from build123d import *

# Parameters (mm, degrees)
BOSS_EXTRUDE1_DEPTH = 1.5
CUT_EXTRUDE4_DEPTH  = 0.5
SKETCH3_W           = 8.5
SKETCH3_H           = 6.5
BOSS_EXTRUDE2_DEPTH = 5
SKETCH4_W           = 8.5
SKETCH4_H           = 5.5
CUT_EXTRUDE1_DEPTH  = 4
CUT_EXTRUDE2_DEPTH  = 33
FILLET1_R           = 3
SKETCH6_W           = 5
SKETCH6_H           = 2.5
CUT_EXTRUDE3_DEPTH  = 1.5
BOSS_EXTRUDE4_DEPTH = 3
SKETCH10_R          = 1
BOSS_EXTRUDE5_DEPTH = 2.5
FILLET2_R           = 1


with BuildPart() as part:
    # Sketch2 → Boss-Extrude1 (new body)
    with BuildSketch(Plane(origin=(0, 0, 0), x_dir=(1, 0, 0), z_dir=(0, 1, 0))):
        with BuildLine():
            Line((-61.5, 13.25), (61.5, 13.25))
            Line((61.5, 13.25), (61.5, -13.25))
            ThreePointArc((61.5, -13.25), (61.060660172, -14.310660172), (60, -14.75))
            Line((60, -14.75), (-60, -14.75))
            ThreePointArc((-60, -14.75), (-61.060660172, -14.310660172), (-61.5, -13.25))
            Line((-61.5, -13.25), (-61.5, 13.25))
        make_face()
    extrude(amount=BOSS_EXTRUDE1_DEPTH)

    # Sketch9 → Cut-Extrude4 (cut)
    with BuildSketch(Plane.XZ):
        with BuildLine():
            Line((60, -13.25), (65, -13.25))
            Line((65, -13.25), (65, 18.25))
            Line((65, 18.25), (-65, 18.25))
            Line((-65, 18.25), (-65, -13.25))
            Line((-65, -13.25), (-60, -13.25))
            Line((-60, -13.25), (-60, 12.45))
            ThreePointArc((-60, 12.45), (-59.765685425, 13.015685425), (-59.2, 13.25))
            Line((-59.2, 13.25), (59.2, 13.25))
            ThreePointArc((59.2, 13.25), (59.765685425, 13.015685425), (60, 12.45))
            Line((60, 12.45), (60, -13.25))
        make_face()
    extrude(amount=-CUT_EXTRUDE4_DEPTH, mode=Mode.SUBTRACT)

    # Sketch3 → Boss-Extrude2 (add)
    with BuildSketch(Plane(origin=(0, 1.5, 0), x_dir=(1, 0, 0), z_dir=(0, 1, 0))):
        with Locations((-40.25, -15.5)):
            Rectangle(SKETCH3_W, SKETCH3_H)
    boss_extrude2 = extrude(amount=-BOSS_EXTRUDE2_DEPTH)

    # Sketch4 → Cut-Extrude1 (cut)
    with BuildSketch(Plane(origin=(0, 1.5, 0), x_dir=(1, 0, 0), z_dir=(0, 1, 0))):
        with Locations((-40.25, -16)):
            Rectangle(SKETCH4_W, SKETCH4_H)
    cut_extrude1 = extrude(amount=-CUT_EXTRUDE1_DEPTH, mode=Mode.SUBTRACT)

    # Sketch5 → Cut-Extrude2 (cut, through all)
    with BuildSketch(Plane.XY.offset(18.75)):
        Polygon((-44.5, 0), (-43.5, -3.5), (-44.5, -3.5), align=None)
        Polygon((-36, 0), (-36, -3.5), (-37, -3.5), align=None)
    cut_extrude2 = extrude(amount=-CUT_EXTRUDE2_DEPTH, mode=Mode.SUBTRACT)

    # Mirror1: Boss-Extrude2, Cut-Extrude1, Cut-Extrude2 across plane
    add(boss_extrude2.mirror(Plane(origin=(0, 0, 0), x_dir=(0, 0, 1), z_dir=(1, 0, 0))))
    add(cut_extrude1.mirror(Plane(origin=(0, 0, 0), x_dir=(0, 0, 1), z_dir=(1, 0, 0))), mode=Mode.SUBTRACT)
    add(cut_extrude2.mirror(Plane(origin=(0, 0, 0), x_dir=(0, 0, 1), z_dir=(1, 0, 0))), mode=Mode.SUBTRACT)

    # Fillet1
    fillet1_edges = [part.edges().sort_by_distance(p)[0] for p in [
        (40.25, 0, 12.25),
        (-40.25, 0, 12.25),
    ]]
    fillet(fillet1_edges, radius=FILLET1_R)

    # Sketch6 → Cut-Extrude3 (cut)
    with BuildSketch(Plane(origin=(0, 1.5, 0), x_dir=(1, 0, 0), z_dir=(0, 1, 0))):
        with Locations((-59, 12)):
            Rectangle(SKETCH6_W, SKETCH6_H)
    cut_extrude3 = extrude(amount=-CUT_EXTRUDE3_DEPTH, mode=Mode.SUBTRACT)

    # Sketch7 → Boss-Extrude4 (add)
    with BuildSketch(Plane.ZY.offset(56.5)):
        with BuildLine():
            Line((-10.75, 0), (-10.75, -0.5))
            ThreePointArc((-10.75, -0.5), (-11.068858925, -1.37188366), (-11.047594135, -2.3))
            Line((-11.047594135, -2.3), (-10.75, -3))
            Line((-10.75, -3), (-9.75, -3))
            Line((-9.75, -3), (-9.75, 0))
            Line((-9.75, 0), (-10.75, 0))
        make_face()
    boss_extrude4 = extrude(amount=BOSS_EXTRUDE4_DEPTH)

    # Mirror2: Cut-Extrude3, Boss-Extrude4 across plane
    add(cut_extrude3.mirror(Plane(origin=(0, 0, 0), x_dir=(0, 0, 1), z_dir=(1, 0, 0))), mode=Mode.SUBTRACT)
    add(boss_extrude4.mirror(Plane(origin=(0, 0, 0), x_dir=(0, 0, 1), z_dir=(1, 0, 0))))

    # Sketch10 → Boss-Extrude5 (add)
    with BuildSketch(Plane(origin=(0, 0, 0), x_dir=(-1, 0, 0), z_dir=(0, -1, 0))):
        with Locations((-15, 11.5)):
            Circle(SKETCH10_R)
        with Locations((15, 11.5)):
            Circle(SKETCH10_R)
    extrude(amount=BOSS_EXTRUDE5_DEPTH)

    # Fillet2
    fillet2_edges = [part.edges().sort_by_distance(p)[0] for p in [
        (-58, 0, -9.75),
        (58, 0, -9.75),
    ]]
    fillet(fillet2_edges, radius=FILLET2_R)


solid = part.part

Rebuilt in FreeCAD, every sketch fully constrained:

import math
import FreeCAD as App
import Part
import Sketcher
from FreeCAD import Vector
Q = App.Units.Quantity


def edges_at(feature, points):
    """Names of the edges that pass closest to the given points."""
    edges = feature.Shape.Edges
    near = lambda p: min(range(len(edges)), key=lambda i: edges[i].distToShape(Part.Vertex(*p))[0])
    return sorted({f"Edge{near(p) + 1}" for p in points})


def add_polygon(sketch, points):
    """Adds a closed chain of lines whose ends are joined by coincident constraints."""
    first, n = sketch.GeometryCount, len(points)
    for a, b in zip(points, points[1:] + points[:1]):
        sketch.addGeometry(Part.LineSegment(App.Vector(*a, 0), App.Vector(*b, 0)), False)
    for i in range(n):
        sketch.addConstraint(Sketcher.Constraint("Coincident", first + i, 2, first + (i + 1) % n, 1))

doc = App.newDocument("Part")
body = doc.addObject("PartDesign::Body", "Body")

sketch1 = body.newObject("Sketcher::SketchObject", "Sketch")
sketch1.AttachmentSupport = (doc.getObject("XZ_Plane"), [""])
sketch1.MapMode = "FlatFace"
sketch1.addGeometry([
    Part.LineSegment(Vector(61.5, -13.2, 0), Vector(-61.5, -13.2, 0)),
    Part.LineSegment(Vector(-61.5, -13.2, 0), Vector(-61.5, 13.2, 0)),
    Part.ArcOfCircle(Part.Circle(Vector(-60, 13.3, 0), Vector(0, 0, 1), 1.5), math.radians(90), math.radians(180)),
    Part.LineSegment(Vector(-60, 14.8, 0), Vector(60, 14.8, 0)),
    Part.ArcOfCircle(Part.Circle(Vector(60, 13.3, 0), Vector(0, 0, 1), 1.5), math.radians(0), math.radians(90)),
    Part.LineSegment(Vector(61.5, 13.2, 0), Vector(61.5, -13.2, 0)),
], False)
sketch1.addConstraint([
    Sketcher.Constraint("Coincident", 0, 2, 1, 1),
    Sketcher.Constraint("Tangent", 1, 2, 2, 2),
    Sketcher.Constraint("Tangent", 2, 1, 3, 1),
    Sketcher.Constraint("Tangent", 3, 2, 4, 2),
    Sketcher.Constraint("Tangent", 4, 1, 5, 1),
    Sketcher.Constraint("Coincident", 5, 2, 0, 1),
    Sketcher.Constraint("Horizontal", 0),
    Sketcher.Constraint("Vertical", 1),
    Sketcher.Constraint("Horizontal", 3),
    Sketcher.Constraint("Vertical", 5),
    Sketcher.Constraint("Equal", 2, 4),
    Sketcher.Constraint("Symmetric", 0, 2, 4, 1, -1, 1),
    Sketcher.Constraint("Radius", 2, Q("1.5 mm")),
    Sketcher.Constraint("DistanceX", 0, 2, 0, 1, Q("123 mm")),
    Sketcher.Constraint("DistanceY", 1, 1, 1, 2, Q("26.5 mm")),
])
pad1 = body.newObject("PartDesign::Pad", "Pad")
pad1.Profile = sketch1
pad1.Length = 1.5
pad1.Reversed = True

sketch2 = body.newObject("Sketcher::SketchObject", "Sketch001")
sketch2.AttachmentSupport = (doc.getObject("XZ_Plane"), [""])
sketch2.MapMode = "FlatFace"
sketch2.addGeometry([
    Part.LineSegment(Vector(60, -13.2, 0), Vector(65, -13.2, 0)),
    Part.LineSegment(Vector(65, -13.2, 0), Vector(65, 18.2, 0)),
    Part.LineSegment(Vector(65, 18.2, 0), Vector(-65, 18.2, 0)),
    Part.LineSegment(Vector(-65, 18.2, 0), Vector(-65, -13.2, 0)),
    Part.LineSegment(Vector(-65, -13.2, 0), Vector(-60, -13.2, 0)),
    Part.LineSegment(Vector(-60, -13.2, 0), Vector(-60, 12.4, 0)),
    Part.ArcOfCircle(Part.Circle(Vector(-59.2, 12.4, 0), Vector(0, 0, 1), 0.8), math.radians(90), math.radians(180)),
    Part.LineSegment(Vector(-59.2, 13.2, 0), Vector(59.2, 13.2, 0)),
    Part.ArcOfCircle(Part.Circle(Vector(59.2, 12.4, 0), Vector(0, 0, 1), 0.8), math.radians(0), math.radians(90)),
    Part.LineSegment(Vector(60, 12.4, 0), Vector(60, -13.2, 0)),
], False)
sketch2.addConstraint([
    Sketcher.Constraint("Coincident", 0, 2, 1, 1),
    Sketcher.Constraint("Coincident", 1, 2, 2, 1),
    Sketcher.Constraint("Coincident", 2, 2, 3, 1),
    Sketcher.Constraint("Coincident", 3, 2, 4, 1),
    Sketcher.Constraint("Coincident", 4, 2, 5, 1),
    Sketcher.Constraint("Tangent", 5, 2, 6, 2),
    Sketcher.Constraint("Tangent", 6, 1, 7, 1),
    Sketcher.Constraint("Tangent", 7, 2, 8, 2),
    Sketcher.Constraint("Tangent", 8, 1, 9, 1),
    Sketcher.Constraint("Coincident", 9, 2, 0, 1),
    Sketcher.Constraint("Horizontal", 0),
    Sketcher.Constraint("Vertical", 1),
    Sketcher.Constraint("Horizontal", 2),
    Sketcher.Constraint("Vertical", 3),
    Sketcher.Constraint("Horizontal", 4),
    Sketcher.Constraint("Vertical", 5),
    Sketcher.Constraint("Horizontal", 7),
    Sketcher.Constraint("Vertical", 9),
    Sketcher.Constraint("Equal", 6, 8),
    Sketcher.Constraint("Symmetric", 0, 2, 3, 2, -2),
    Sketcher.Constraint("Equal", 0, 4),
    Sketcher.Constraint("Radius", 6, Q("0.8 mm")),
    Sketcher.Constraint("DistanceX", 0, 1, 0, 2, Q("5 mm")),
    Sketcher.Constraint("DistanceX", 2, 2, 2, 1, Q("130 mm")),
    Sketcher.Constraint("DistanceY", 1, 1, 1, 2, Q("31.5 mm")),
    Sketcher.Constraint("DistanceY", 5, 1, 5, 2, Q("25.7 mm")),
    Sketcher.Constraint("DistanceY", -1, 1, 6, 3, Q("12.45 mm")),
])
pocket1 = body.newObject("PartDesign::Pocket", "Pocket")
pocket1.Profile = sketch2
pocket1.Length = 0.5

sketch3 = body.newObject("Sketcher::SketchObject", "Sketch002")
sketch3.AttachmentSupport = (doc.getObject("XZ_Plane"), [""])
sketch3.MapMode = "FlatFace"
sketch3.AttachmentOffset = App.Placement(Vector(0, 0, -1.5), App.Rotation())
add_polygon(sketch3, [(-44, 12), (-44, 19), (-36, 19), (-36, 12)])
sketch3.addConstraint([
    Sketcher.Constraint("Vertical", 0),
    Sketcher.Constraint("Horizontal", 1),
    Sketcher.Constraint("Vertical", 2),
    Sketcher.Constraint("Horizontal", 3),
    Sketcher.Constraint("DistanceX", 1, 1, 1, 2, Q("8.5 mm")),
    Sketcher.Constraint("DistanceY", 0, 1, 0, 2, Q("6.5 mm")),
    Sketcher.Constraint("DistanceX", 1, 2, -1, 1, Q("36 mm")),
    Sketcher.Constraint("DistanceY", -1, 1, 0, 2, Q("18.75 mm")),
])
pad2 = body.newObject("PartDesign::Pad", "Pad001")
pad2.Profile = sketch3
pad2.Length = 5

sketch4 = body.newObject("Sketcher::SketchObject", "Sketch003")
sketch4.AttachmentSupport = (doc.getObject("XZ_Plane"), [""])
sketch4.MapMode = "FlatFace"
sketch4.AttachmentOffset = App.Placement(Vector(0, 0, -1.5), App.Rotation())
add_polygon(sketch4, [(-44, 13), (-44, 19), (-36, 19), (-36, 13)])
sketch4.addConstraint([
    Sketcher.Constraint("Vertical", 0),
    Sketcher.Constraint("Horizontal", 1),
    Sketcher.Constraint("Vertical", 2),
    Sketcher.Constraint("Horizontal", 3),
    Sketcher.Constraint("DistanceX", 1, 1, 1, 2, Q("8.5 mm")),
    Sketcher.Constraint("DistanceY", 0, 1, 0, 2, Q("5.5 mm")),
    Sketcher.Constraint("DistanceX", 1, 2, -1, 1, Q("36 mm")),
    Sketcher.Constraint("DistanceY", -1, 1, 0, 2, Q("18.75 mm")),
])
pocket2 = body.newObject("PartDesign::Pocket", "Pocket001")
pocket2.Profile = sketch4
pocket2.Length = 4
pocket2.Reversed = True

sketch5 = body.newObject("Sketcher::SketchObject", "Sketch004")
sketch5.AttachmentSupport = (doc.getObject("XY_Plane"), [""])
sketch5.MapMode = "FlatFace"
sketch5.AttachmentOffset = App.Placement(Vector(0, 0, 18.75), App.Rotation())
add_polygon(sketch5, [(-43.5, -3.5), (-44.5, 0), (-44.5, -3.5)])
add_polygon(sketch5, [(-36, -3.5), (-36, 0), (-37, -3.5)])
sketch5.addConstraint([
    Sketcher.Constraint("Vertical", 1),
    Sketcher.Constraint("Horizontal", 2),
    Sketcher.Constraint("Vertical", 3),
    Sketcher.Constraint("Horizontal", 5),
    Sketcher.Constraint("PointOnObject", 0, 2, -1),
    Sketcher.Constraint("PointOnObject", 3, 2, -1),
    Sketcher.Constraint("Horizontal", 2, 2, 4, 2),
    Sketcher.Constraint("Equal", 2, 5),
    Sketcher.Constraint("DistanceX", 2, 1, 2, 2, Q("1 mm")),
    Sketcher.Constraint("DistanceY", 1, 2, 1, 1, Q("3.5 mm")),
    Sketcher.Constraint("DistanceX", 3, 2, -1, 1, Q("36 mm")),
    Sketcher.Constraint("DistanceX", 0, 2, -1, 1, Q("44.5 mm")),
])
pocket3 = body.newObject("PartDesign::Pocket", "Pocket002")
pocket3.Profile = sketch5
pocket3.Type = "ThroughAll"
doc.recompute()

mirrored = body.newObject("PartDesign::Mirrored", "Mirrored")
mirrored.Originals = [pad2, pocket2, pocket3]
mirrored.MirrorPlane = (doc.getObject("YZ_Plane"), [""])
body.Tip = mirrored
doc.recompute()

fillet = body.newObject("PartDesign::Fillet", "Fillet")
fillet.Base = (mirrored, edges_at(mirrored, [(40.25, 0, 12.25), (-40.25, 0, 12.25)]))
fillet.Radius = 3

sketch6 = body.newObject("Sketcher::SketchObject", "Sketch005")
sketch6.AttachmentSupport = (doc.getObject("XZ_Plane"), [""])
sketch6.MapMode = "FlatFace"
sketch6.AttachmentOffset = App.Placement(Vector(0, 0, -1.5), App.Rotation())
add_polygon(sketch6, [(-61.5, -13.2), (-61.5, -10.8), (-56.5, -10.8), (-56.5, -13.2)])
sketch6.addConstraint([
    Sketcher.Constraint("Vertical", 0),
    Sketcher.Constraint("Horizontal", 1),
    Sketcher.Constraint("Vertical", 2),
    Sketcher.Constraint("Horizontal", 3),
    Sketcher.Constraint("DistanceX", 1, 1, 1, 2, Q("5 mm")),
    Sketcher.Constraint("DistanceY", 0, 1, 0, 2, Q("2.5 mm")),
    Sketcher.Constraint("DistanceX", 0, 2, -1, 1, Q("61.5 mm")),
    Sketcher.Constraint("DistanceY", 0, 2, -1, 1, Q("10.75 mm")),
])
pocket4 = body.newObject("PartDesign::Pocket", "Pocket003")
pocket4.Profile = sketch6
pocket4.Length = 1.5
pocket4.Reversed = True

sketch7 = body.newObject("Sketcher::SketchObject", "Sketch006")
sketch7.AttachmentSupport = (doc.getObject("YZ_Plane"), [""])
sketch7.MapMode = "FlatFace"
sketch7.AttachmentOffset = App.Placement(Vector(0, 0, -56.5), App.Rotation())
sketch7.addGeometry([
    Part.LineSegment(Vector(0, -10.8, 0), Vector(-0.5, -10.8, 0)),
    Part.ArcOfCircle(Part.Circle(Vector(-1.8, -8.6, 0), Vector(0, 0, 1), 2.5), math.radians(-102), math.radians(-59)),
    Part.LineSegment(Vector(-2.3, -11, 0), Vector(-3, -10.8, 0)),
    Part.LineSegment(Vector(-3, -10.8, 0), Vector(-3, -9.8, 0)),
    Part.LineSegment(Vector(-3, -9.8, 0), Vector(0, -9.8, 0)),
    Part.LineSegment(Vector(0, -9.8, 0), Vector(0, -10.8, 0)),
], False)
sketch7.addConstraint([
    Sketcher.Constraint("Coincident", 0, 2, 1, 2),
    Sketcher.Constraint("Coincident", 1, 1, 2, 1),
    Sketcher.Constraint("Coincident", 2, 2, 3, 1),
    Sketcher.Constraint("Coincident", 3, 2, 4, 1),
    Sketcher.Constraint("Coincident", 4, 2, 5, 1),
    Sketcher.Constraint("Coincident", 5, 2, 0, 1),
    Sketcher.Constraint("Horizontal", 0),
    Sketcher.Constraint("Vertical", 3),
    Sketcher.Constraint("Horizontal", 4),
    Sketcher.Constraint("Vertical", 5),
    Sketcher.Constraint("PointOnObject", 4, 2, -2),
    Sketcher.Constraint("Horizontal", 0, 2, 2, 2),
    Sketcher.Constraint("Radius", 1, Q("2.5 mm")),
    Sketcher.Constraint("DistanceX", 4, 1, 4, 2, Q("3 mm")),
    Sketcher.Constraint("DistanceY", 3, 1, 3, 2, Q("1 mm")),
    Sketcher.Constraint("DistanceX", 0, 2, 0, 1, Q("0.5 mm")),
    Sketcher.Constraint("DistanceX", 1, 1, -1, 1, Q("2.3 mm")),
    Sketcher.Constraint("DistanceY", 0, 2, -1, 1, Q("10.75 mm")),
    Sketcher.Constraint("DistanceY", 1, 3, -1, 1, Q("8.602342 mm")),
])
pad3 = body.newObject("PartDesign::Pad", "Pad002")
pad3.Profile = sketch7
pad3.Length = 3
pad3.Reversed = True
doc.recompute()

mirrored2 = body.newObject("PartDesign::Mirrored", "Mirrored001")
mirrored2.Originals = [pocket4, pad3]
mirrored2.MirrorPlane = (doc.getObject("YZ_Plane"), [""])
body.Tip = mirrored2

sketch8 = body.newObject("Sketcher::SketchObject", "Sketch007")
sketch8.AttachmentSupport = (doc.getObject("XZ_Plane"), [""])
sketch8.MapMode = "FlatFace"
sketch8.addGeometry([
    Part.Circle(Vector(15, -11.5, 0), Vector(0, 0, 1), 1),
    Part.Circle(Vector(-15, -11.5, 0), Vector(0, 0, 1), 1),
], False)
sketch8.addConstraint([
    Sketcher.Constraint("Equal", 0, 1),
    Sketcher.Constraint("Symmetric", 0, 3, 1, 3, -2),
    Sketcher.Constraint("Diameter", 0, Q("2 mm")),
    Sketcher.Constraint("DistanceX", -1, 1, 0, 3, Q("15 mm")),
    Sketcher.Constraint("DistanceY", 0, 3, -1, 1, Q("11.5 mm")),
])
pad4 = body.newObject("PartDesign::Pad", "Pad003")
pad4.Profile = sketch8
pad4.Length = 2.5
doc.recompute()

fillet2 = body.newObject("PartDesign::Fillet", "Fillet001")
fillet2.Base = (pad4, edges_at(pad4, [(-58, 0, -9.75), (58, 0, -9.75)]))
fillet2.Radius = 1

doc.recompute()
